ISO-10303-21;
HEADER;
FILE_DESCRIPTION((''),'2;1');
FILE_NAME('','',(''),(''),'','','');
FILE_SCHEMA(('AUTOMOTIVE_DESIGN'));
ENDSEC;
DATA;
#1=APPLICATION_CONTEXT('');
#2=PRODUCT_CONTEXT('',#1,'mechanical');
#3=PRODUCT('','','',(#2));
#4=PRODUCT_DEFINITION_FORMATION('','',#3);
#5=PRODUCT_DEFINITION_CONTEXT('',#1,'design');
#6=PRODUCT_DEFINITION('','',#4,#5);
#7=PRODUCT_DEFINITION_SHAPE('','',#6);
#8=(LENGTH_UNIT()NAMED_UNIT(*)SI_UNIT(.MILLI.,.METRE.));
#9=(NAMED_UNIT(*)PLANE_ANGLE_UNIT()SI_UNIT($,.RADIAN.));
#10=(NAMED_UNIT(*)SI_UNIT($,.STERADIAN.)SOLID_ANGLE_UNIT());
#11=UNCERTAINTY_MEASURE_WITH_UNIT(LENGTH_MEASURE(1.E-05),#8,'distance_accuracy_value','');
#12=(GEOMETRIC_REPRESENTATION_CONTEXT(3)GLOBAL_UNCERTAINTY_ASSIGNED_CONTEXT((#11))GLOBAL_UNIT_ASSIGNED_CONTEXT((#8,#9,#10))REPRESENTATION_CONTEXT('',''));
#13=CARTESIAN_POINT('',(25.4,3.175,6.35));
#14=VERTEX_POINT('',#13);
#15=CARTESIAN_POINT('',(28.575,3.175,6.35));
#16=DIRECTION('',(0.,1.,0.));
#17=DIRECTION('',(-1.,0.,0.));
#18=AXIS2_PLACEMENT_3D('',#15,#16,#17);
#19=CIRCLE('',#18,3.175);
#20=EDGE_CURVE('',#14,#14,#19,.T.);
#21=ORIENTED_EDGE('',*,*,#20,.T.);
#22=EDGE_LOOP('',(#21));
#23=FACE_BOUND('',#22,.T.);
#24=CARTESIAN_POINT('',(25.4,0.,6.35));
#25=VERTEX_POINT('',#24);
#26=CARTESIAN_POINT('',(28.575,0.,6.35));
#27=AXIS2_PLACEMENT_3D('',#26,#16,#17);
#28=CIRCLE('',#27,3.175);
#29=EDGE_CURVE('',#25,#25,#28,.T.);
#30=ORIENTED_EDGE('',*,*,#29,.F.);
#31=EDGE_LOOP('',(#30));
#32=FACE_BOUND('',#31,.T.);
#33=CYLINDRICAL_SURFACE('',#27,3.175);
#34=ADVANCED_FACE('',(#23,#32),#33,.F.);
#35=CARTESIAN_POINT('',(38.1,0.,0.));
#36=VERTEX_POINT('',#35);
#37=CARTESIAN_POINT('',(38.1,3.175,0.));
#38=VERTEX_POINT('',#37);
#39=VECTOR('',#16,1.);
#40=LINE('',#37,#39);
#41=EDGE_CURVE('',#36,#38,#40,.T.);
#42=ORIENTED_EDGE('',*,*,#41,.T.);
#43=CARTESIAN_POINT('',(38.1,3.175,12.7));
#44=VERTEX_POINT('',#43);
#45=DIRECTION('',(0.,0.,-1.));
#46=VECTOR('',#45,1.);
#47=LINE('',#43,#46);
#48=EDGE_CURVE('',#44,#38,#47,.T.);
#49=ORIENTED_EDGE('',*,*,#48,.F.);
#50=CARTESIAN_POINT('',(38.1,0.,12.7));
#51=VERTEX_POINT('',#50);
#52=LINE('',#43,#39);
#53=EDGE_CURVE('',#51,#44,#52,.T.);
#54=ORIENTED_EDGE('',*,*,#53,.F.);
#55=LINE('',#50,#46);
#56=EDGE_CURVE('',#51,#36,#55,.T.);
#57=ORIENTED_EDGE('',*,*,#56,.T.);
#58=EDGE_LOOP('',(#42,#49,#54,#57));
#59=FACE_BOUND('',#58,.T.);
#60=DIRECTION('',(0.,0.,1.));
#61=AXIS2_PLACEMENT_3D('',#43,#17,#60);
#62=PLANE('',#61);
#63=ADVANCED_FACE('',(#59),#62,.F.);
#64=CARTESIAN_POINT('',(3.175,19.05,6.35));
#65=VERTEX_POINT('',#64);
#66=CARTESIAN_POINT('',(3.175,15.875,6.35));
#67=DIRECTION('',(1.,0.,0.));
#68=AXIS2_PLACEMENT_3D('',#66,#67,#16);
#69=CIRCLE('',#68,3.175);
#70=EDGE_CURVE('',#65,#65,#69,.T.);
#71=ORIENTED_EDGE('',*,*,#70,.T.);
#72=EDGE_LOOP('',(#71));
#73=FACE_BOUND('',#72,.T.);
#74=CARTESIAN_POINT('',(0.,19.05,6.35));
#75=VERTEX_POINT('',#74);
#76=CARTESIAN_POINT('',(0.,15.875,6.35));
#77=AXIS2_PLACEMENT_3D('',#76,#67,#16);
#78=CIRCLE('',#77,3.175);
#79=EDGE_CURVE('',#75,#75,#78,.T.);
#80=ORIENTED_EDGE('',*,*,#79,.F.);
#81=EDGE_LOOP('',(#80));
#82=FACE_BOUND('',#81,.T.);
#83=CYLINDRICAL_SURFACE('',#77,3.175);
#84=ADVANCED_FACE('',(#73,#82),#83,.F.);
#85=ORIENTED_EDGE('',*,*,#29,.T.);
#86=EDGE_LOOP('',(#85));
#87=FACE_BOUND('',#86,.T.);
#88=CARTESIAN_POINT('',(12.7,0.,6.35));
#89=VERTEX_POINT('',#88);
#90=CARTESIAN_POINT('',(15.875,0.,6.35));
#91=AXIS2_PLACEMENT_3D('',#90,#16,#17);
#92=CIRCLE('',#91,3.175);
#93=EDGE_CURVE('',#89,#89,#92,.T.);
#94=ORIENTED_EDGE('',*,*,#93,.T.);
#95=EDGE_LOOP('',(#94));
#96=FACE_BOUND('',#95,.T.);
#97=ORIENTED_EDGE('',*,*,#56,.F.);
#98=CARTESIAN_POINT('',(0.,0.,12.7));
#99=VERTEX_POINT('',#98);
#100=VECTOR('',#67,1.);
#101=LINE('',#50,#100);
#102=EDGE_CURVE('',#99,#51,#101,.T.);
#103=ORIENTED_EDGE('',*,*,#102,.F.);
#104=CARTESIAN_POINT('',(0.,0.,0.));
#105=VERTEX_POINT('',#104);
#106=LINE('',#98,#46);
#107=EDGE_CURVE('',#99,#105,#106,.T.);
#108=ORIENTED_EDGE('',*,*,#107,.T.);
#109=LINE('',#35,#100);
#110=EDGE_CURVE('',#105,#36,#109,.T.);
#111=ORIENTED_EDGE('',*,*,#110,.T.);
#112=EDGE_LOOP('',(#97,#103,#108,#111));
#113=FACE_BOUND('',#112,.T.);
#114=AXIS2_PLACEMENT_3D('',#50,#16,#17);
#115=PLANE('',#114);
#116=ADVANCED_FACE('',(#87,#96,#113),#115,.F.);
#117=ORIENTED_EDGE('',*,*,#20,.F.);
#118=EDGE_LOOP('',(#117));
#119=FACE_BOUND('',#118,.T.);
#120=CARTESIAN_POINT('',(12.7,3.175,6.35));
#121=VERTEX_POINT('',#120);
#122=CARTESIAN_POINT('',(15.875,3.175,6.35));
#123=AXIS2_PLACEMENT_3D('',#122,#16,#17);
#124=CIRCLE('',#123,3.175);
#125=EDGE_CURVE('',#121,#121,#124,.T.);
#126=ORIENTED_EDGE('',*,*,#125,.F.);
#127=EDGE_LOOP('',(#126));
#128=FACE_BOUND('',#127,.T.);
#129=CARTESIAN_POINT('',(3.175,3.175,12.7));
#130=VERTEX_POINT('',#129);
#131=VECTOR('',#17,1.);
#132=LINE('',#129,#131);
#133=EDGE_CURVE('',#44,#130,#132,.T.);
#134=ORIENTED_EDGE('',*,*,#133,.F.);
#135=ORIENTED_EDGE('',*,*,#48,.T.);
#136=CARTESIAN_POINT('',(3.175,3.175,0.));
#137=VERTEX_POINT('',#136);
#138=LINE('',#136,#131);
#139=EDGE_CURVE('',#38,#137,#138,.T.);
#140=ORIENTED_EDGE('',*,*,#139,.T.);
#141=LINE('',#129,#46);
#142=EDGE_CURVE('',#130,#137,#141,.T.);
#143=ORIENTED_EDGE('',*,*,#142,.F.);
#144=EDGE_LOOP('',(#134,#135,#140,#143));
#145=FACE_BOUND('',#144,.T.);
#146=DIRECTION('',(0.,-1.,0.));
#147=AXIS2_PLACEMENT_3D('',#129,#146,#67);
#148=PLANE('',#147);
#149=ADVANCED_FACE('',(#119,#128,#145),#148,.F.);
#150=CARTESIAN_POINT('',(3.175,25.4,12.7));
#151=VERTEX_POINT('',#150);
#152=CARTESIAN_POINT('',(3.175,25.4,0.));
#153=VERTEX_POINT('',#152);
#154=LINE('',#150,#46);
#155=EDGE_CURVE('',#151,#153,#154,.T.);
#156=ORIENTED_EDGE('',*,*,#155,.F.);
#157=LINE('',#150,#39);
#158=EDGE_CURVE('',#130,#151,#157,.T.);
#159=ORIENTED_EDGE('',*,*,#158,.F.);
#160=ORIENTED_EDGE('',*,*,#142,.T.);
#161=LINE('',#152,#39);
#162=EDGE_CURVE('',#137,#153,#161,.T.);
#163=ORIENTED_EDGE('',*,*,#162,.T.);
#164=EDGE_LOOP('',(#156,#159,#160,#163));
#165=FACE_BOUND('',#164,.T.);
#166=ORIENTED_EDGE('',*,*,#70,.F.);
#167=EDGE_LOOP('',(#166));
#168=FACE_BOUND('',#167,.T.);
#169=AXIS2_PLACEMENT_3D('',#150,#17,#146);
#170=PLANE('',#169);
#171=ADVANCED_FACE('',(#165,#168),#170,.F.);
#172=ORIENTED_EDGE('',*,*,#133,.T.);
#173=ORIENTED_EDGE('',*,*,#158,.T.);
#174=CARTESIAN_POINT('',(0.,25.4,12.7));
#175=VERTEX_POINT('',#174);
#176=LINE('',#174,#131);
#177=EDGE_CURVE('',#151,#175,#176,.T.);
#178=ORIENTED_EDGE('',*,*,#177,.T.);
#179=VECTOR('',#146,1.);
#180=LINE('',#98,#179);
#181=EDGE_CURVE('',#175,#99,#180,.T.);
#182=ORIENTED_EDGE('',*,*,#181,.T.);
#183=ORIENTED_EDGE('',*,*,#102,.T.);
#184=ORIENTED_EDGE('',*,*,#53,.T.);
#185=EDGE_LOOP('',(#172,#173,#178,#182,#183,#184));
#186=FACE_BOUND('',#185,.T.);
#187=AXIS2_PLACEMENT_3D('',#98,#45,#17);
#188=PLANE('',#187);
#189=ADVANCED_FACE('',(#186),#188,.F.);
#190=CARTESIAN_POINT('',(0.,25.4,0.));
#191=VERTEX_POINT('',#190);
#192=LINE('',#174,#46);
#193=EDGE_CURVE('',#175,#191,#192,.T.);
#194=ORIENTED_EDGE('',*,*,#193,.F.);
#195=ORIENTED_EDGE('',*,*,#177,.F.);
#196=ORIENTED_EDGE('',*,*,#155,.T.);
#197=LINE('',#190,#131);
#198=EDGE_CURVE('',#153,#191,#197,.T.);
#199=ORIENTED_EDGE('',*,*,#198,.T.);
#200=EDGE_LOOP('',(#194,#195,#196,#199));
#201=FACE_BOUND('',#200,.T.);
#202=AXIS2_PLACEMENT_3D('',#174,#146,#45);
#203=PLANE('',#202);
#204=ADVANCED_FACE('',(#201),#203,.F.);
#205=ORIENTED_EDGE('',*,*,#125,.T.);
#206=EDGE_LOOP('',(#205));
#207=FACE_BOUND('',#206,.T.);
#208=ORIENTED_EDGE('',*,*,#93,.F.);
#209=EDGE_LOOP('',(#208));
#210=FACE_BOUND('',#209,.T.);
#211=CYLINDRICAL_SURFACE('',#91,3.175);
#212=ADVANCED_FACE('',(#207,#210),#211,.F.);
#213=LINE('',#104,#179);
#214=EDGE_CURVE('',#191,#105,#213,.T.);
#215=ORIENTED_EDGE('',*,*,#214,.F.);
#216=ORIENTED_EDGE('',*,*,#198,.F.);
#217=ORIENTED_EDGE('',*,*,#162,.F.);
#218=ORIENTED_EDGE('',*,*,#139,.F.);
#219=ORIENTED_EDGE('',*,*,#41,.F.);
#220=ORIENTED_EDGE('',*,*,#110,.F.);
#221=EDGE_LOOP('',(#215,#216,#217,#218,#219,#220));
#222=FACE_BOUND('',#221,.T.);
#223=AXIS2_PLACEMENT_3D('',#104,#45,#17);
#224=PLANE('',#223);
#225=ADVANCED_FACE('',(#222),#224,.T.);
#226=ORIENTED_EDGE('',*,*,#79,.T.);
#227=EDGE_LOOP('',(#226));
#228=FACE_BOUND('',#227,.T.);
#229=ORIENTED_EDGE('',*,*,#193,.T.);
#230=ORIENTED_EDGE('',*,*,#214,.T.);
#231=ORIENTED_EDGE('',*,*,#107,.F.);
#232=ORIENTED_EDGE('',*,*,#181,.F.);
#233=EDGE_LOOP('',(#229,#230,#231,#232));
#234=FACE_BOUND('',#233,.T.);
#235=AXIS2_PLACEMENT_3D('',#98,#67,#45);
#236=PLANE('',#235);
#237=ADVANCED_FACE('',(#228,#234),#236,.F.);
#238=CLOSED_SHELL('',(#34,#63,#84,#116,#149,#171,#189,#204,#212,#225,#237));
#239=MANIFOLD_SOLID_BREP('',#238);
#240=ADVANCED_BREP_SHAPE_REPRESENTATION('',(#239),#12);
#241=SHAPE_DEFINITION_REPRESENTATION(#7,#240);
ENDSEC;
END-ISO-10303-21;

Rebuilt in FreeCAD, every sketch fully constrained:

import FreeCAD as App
import Part
import Sketcher
Q = App.Units.Quantity

doc = App.newDocument("Part")
params = doc.addObject("Spreadsheet::Sheet", "Params")
for row, (alias, value) in enumerate([
    ("sketch1_height", "1 in"),
    ("sketch1_width", "1.5 in"),
    ("sketch1_width2", "1.375 in"),
    ("pad1_length", "0.5 in"),
    ("sketch2_diameter", "0.25 in"),
    ("sketch3_diameter", "0.25 in"),
], start=1):
    params.set(f"A{row}", alias)
    params.set(f"B{row}", "=" + value)
    params.setAlias(f"B{row}", alias)

body = doc.addObject("PartDesign::Body", "Body")

# Sketch on XY plane
sketch1 = body.newObject("Sketcher::SketchObject", "Sketch")
sketch1.AttachmentSupport = (doc.getObject("XY_Plane"), [""])
sketch1.MapMode = "FlatFace"
sketch1.addGeometry([
    Part.LineSegment(App.Vector(0, 25.4, 0), App.Vector(0, 0, 0)),  # 0
    Part.LineSegment(App.Vector(0, 0, 0), App.Vector(38.1, 0, 0)),  # 1
    Part.LineSegment(App.Vector(38.1, 0, 0), App.Vector(38.1, 3.2, 0)),  # 2
    Part.LineSegment(App.Vector(38.1, 3.2, 0), App.Vector(3.2, 3.2, 0)),  # 3
    Part.LineSegment(App.Vector(3.2, 3.2, 0), App.Vector(3.2, 25.4, 0)),  # 4
    Part.LineSegment(App.Vector(3.2, 25.4, 0), App.Vector(0, 25.4, 0)),  # 5
], False)
sketch1.addConstraint([
    Sketcher.Constraint("Coincident", 0, 2, 1, 1),
    Sketcher.Constraint("Coincident", 1, 2, 2, 1),
    Sketcher.Constraint("Coincident", 2, 2, 3, 1),
    Sketcher.Constraint("Coincident", 3, 2, 4, 1),
    Sketcher.Constraint("Coincident", 4, 2, 5, 1),
    Sketcher.Constraint("Coincident", 5, 2, 0, 1),
    Sketcher.Constraint("Vertical", 0),
    Sketcher.Constraint("Horizontal", 1),
    Sketcher.Constraint("Vertical", 2),
    Sketcher.Constraint("Horizontal", 3),
    Sketcher.Constraint("Vertical", 4),
    Sketcher.Constraint("Horizontal", 5),
    Sketcher.Constraint("Coincident", 0, 2, -1, 1),
    Sketcher.Constraint("Equal", 5, 2),
    Sketcher.Constraint("DistanceY", 0, 2, 0, 1, Q("1 in")),
    Sketcher.Constraint("DistanceX", 1, 1, 1, 2, Q("1.5 in")),
    Sketcher.Constraint("DistanceX", 3, 2, 3, 1, Q("1.375 in")),
])
sketch1.setExpression("Constraints[14]", "Params.sketch1_height")
sketch1.setExpression("Constraints[15]", "Params.sketch1_width")
sketch1.setExpression("Constraints[16]", "Params.sketch1_width2")
pad1 = body.newObject("PartDesign::Pad", "Pad")
pad1.Profile = sketch1
pad1.setExpression("Length", "Params.pad1_length")

# Sketch on XZ plane
sketch2 = body.newObject("Sketcher::SketchObject", "Sketch001")
sketch2.AttachmentSupport = (doc.getObject("XZ_Plane"), [""])
sketch2.MapMode = "FlatFace"
sketch2.AttachmentOffset = App.Placement(App.Vector(0, 0, -0.125 * 25.4), App.Rotation())
sketch2.addGeometry([
    Part.Circle(App.Vector(15.9, 6.3, 0), App.Vector(0, 0, 1), 3.2),
    Part.Circle(App.Vector(28.6, 6.3, 0), App.Vector(0, 0, 1), 3.2),
], False)
sketch2.addConstraint([
    Sketcher.Constraint("Equal", 0, 1),
    Sketcher.Constraint("Horizontal", 0, 3, 1, 3),
    Sketcher.Constraint("Diameter", 0, Q("0.25 in")),
    Sketcher.Constraint("DistanceX", 0, 3, 1, 3, Q("0.5 in")),
    Sketcher.Constraint("DistanceY", -1, 1, 0, 3, Q("0.25 in")),
    Sketcher.Constraint("DistanceX", -1, 1, 0, 3, Q("0.625 in")),
])
sketch2.setExpression("Constraints[2]", "Params.sketch2_diameter")
pocket1 = body.newObject("PartDesign::Pocket", "Pocket")
pocket1.Profile = sketch2
pocket1.Type = "ThroughAll"
pocket1.Reversed = True

# Sketch on YZ plane
sketch3 = body.newObject("Sketcher::SketchObject", "Sketch002")
sketch3.AttachmentSupport = (doc.getObject("YZ_Plane"), [""])
sketch3.MapMode = "FlatFace"
sketch3.AttachmentOffset = App.Placement(App.Vector(0, 0, 0.125 * 25.4), App.Rotation())
sketch3.addGeometry([
    Part.Circle(App.Vector(28.6, 6.3, 0), App.Vector(0, 0, 1), 3.2),
    Part.Circle(App.Vector(15.9, 6.3, 0), App.Vector(0, 0, 1), 3.2),
], False)
sketch3.addConstraint([
    Sketcher.Constraint("Equal", 0, 1),
    Sketcher.Constraint("Horizontal", 0, 3, 1, 3),
    Sketcher.Constraint("Diameter", 0, Q("0.25 in")),
    Sketcher.Constraint("DistanceX", 1, 3, 0, 3, Q("0.5 in")),
    Sketcher.Constraint("DistanceY", -1, 1, 0, 3, Q("0.25 in")),
    Sketcher.Constraint("DistanceX", -1, 1, 0, 3, Q("1.125 in")),
])
sketch3.setExpression("Constraints[2]", "Params.sketch3_diameter")
pocket2 = body.newObject("PartDesign::Pocket", "Pocket001")
pocket2.Profile = sketch3
pocket2.Type = "ThroughAll"

doc.recompute()
